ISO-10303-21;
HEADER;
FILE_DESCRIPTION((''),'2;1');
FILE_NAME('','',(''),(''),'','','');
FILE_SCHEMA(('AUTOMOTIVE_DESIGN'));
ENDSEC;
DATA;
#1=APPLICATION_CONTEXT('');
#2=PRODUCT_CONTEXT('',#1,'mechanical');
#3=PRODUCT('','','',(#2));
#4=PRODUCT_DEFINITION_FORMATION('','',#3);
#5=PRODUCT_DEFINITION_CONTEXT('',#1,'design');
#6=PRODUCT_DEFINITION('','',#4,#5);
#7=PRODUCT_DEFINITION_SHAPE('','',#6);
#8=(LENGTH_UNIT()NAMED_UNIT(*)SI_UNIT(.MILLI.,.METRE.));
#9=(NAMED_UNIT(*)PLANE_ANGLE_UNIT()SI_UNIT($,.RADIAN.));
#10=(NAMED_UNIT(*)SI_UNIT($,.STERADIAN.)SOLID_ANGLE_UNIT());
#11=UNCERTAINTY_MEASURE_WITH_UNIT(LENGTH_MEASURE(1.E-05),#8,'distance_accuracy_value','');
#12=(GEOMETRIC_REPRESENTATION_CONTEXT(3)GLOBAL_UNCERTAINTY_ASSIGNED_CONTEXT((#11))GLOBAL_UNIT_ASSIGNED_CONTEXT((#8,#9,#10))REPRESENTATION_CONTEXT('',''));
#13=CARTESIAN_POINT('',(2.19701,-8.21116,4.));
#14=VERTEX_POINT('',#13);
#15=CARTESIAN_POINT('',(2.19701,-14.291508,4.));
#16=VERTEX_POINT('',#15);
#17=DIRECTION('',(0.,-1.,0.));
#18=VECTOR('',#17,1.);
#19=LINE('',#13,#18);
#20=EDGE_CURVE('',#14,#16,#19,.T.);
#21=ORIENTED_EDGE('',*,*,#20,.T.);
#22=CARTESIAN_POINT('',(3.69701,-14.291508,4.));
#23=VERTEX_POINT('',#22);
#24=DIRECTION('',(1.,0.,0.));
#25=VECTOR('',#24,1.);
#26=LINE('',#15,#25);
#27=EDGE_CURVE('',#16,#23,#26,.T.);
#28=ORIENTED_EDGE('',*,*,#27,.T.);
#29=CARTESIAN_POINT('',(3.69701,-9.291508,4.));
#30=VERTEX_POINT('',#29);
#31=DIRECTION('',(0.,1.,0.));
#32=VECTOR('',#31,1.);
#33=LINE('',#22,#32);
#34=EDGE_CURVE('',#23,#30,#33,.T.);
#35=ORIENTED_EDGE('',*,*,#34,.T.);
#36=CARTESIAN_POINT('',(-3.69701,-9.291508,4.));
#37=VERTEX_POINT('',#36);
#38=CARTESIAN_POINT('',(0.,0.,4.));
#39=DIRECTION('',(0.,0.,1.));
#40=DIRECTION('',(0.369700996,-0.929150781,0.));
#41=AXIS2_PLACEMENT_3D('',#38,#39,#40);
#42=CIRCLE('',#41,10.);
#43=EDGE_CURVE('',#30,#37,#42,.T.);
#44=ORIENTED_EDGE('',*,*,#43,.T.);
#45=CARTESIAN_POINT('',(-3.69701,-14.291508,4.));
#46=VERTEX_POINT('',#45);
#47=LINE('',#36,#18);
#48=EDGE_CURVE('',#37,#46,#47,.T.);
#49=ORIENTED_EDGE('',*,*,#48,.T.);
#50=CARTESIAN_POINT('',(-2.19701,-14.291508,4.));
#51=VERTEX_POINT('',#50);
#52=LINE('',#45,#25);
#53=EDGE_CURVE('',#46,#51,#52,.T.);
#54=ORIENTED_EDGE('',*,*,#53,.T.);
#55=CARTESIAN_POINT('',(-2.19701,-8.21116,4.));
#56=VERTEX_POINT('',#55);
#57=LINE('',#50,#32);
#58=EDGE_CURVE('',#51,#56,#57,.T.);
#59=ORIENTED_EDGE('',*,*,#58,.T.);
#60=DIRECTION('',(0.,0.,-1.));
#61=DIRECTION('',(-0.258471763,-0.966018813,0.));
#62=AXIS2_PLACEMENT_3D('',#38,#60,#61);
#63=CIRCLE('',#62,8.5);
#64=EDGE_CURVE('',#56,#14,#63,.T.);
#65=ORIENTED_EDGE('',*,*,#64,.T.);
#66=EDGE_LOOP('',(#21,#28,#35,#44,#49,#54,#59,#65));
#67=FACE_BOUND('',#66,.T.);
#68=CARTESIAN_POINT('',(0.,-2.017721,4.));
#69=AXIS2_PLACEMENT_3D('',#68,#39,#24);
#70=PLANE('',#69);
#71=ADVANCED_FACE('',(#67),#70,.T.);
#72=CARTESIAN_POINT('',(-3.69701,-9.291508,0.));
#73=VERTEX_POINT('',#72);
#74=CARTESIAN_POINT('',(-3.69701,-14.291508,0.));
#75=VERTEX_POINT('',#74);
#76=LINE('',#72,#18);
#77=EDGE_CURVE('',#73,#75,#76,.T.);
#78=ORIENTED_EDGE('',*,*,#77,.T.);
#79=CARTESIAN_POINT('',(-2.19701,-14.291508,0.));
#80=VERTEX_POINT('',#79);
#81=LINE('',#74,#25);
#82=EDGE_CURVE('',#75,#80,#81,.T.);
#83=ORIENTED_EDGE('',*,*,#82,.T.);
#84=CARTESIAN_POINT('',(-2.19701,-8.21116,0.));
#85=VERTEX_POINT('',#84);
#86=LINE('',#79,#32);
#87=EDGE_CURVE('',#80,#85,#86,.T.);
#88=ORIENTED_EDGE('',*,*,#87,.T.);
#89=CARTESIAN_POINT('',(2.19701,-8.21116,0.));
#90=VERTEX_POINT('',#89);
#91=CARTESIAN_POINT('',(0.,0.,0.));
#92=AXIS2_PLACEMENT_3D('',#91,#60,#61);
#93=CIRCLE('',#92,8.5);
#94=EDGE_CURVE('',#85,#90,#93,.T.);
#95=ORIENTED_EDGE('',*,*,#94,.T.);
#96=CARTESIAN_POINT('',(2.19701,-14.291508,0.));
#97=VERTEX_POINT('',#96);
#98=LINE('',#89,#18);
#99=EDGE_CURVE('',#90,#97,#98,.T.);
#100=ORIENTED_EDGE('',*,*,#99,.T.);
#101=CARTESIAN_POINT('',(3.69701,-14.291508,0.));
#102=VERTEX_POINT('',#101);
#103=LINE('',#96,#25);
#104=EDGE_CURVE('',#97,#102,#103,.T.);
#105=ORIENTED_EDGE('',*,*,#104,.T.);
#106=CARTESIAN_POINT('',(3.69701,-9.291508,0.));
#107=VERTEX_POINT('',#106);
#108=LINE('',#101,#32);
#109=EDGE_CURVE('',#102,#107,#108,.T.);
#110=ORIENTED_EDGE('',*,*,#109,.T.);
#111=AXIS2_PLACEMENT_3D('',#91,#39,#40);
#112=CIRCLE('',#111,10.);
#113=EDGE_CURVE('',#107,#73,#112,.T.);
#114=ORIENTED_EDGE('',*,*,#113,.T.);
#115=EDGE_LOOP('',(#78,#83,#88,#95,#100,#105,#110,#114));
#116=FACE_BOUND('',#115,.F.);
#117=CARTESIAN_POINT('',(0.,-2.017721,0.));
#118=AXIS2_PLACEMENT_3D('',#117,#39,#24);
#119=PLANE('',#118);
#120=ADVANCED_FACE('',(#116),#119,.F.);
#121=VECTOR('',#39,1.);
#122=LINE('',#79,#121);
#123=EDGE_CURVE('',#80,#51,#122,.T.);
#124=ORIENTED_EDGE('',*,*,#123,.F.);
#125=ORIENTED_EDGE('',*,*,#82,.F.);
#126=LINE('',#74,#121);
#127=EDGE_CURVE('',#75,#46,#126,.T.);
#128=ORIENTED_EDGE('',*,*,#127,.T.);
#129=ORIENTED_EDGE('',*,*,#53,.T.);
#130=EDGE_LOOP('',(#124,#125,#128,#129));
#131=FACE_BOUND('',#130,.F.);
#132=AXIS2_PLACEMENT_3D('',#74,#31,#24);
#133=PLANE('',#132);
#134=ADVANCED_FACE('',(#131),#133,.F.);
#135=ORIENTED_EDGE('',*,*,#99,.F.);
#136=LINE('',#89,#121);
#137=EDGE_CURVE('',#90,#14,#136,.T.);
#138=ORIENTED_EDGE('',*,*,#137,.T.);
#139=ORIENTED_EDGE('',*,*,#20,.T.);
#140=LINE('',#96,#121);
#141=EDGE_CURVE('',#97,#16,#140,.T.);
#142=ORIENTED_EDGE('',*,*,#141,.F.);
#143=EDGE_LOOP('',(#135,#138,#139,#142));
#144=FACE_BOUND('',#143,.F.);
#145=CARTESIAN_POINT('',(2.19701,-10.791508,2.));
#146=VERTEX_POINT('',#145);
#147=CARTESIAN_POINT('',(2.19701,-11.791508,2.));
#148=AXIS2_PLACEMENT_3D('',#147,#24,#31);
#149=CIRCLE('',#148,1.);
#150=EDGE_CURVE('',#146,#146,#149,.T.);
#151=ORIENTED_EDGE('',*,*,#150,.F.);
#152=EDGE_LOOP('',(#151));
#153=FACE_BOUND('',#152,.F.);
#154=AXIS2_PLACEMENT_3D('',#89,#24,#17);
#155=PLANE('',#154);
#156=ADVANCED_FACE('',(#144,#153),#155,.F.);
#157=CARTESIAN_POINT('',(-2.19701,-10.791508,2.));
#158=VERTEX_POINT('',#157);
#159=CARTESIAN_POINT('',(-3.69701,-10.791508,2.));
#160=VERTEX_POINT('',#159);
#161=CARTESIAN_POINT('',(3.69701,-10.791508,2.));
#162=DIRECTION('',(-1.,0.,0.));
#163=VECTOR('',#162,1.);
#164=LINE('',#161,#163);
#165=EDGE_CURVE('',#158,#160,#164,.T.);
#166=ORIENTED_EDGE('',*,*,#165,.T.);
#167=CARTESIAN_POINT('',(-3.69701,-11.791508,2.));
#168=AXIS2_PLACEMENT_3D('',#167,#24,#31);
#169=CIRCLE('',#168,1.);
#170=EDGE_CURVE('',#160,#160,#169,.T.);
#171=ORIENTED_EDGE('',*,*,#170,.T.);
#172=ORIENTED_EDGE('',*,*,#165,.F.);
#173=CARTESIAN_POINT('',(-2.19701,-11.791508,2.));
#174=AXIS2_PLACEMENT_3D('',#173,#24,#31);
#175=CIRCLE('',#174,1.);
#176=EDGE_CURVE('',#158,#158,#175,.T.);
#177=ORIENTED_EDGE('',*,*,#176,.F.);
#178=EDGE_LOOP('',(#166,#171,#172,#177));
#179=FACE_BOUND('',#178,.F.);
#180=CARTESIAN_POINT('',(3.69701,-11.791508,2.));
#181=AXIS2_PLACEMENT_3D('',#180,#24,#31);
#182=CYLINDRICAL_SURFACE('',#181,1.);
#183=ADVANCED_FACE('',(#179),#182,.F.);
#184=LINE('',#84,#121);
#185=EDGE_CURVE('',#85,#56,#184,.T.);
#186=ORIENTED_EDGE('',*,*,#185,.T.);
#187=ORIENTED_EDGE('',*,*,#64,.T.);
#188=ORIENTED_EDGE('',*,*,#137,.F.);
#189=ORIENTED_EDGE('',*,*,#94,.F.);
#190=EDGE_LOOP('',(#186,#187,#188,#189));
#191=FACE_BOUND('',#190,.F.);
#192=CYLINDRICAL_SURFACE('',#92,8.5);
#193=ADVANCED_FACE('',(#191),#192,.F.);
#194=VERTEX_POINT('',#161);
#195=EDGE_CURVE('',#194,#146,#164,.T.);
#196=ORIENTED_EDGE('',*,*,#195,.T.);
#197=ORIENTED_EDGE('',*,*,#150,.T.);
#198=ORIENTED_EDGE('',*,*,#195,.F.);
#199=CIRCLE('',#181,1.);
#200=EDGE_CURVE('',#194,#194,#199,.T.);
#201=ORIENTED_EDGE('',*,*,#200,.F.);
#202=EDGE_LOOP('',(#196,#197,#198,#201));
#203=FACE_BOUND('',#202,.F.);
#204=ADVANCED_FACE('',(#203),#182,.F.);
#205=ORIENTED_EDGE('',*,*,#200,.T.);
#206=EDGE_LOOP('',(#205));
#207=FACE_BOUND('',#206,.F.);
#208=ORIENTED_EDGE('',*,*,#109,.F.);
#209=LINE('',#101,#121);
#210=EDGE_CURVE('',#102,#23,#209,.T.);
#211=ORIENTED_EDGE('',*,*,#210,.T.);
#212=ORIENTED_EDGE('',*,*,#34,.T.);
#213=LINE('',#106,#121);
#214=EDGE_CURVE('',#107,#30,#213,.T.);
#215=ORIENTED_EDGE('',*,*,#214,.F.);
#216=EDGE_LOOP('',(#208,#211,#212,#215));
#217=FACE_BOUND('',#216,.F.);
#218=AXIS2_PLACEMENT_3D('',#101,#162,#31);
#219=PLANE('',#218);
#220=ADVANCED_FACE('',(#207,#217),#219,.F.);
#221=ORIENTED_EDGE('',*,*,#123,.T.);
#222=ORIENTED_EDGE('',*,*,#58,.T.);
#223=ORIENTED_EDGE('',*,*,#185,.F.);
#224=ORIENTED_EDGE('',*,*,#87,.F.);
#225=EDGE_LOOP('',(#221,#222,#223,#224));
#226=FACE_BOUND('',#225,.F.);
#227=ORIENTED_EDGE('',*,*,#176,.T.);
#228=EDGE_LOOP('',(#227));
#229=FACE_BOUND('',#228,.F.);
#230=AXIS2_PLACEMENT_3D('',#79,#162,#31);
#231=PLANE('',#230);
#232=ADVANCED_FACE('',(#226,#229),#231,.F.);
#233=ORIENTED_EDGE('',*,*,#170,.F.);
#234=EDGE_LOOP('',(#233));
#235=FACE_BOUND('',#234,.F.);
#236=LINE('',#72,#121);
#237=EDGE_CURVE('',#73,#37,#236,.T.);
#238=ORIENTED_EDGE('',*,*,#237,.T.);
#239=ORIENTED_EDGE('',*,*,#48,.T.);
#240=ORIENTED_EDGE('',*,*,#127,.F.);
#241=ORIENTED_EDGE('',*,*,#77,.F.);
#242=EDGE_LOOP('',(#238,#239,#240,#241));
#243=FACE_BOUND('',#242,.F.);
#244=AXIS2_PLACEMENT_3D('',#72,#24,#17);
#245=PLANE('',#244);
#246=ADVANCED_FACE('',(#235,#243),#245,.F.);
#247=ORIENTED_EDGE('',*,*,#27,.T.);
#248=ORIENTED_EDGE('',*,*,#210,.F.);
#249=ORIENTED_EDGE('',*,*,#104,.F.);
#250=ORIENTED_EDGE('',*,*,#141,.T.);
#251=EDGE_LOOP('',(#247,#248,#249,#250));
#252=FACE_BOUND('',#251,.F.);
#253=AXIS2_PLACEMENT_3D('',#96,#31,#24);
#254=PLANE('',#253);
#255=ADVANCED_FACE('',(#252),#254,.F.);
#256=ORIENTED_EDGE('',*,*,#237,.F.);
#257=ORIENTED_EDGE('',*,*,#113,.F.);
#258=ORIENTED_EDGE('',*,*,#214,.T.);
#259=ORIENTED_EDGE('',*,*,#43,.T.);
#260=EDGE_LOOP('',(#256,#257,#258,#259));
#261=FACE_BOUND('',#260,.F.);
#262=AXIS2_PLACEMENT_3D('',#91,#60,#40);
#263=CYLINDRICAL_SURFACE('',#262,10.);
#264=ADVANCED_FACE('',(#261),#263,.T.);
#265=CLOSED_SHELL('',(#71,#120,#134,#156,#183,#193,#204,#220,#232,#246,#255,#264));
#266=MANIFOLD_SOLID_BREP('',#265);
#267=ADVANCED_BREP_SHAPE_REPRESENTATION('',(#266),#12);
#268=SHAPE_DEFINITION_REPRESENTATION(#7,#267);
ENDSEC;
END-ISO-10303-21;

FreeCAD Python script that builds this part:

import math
import FreeCAD as App
import Part
import Sketcher
from FreeCAD import Vector

doc = App.newDocument("Part")
body = doc.addObject("PartDesign::Body", "Body")

# Sketch on XY plane
sketch1 = body.newObject("Sketcher::SketchObject", "Sketch")
sketch1.AttachmentSupport = (doc.getObject("XY_Plane"), [""])
sketch1.MapMode = "FlatFace"
sketch1.addGeometry(Part.LineSegment(Vector(2.2, -14.3, 0), Vector(3.7, -14.3, 0)), False)
sketch1.addGeometry(Part.LineSegment(Vector(3.7, -14.3, 0), Vector(3.7, -9.3, 0)), False)
sketch1.addGeometry(Part.ArcOfCircle(Part.Circle(Vector(0, 0, 0), Vector(0, 0, 1), 10), math.radians(-68), math.radians(248)), False)
sketch1.addGeometry(Part.LineSegment(Vector(-3.7, -9.3, 0), Vector(-3.7, -14.3, 0)), False)
sketch1.addGeometry(Part.LineSegment(Vector(-3.7, -14.3, 0), Vector(-2.2, -14.3, 0)), False)
sketch1.addGeometry(Part.LineSegment(Vector(-2.2, -14.3, 0), Vector(-2.2, -8.2, 0)), False)
sketch1.addGeometry(Part.ArcOfCircle(Part.Circle(Vector(0, 0, 0), Vector(0, 0, 1), 8.5), math.radians(-75), math.radians(255)), False)
sketch1.addGeometry(Part.LineSegment(Vector(2.2, -8.2, 0), Vector(2.2, -14.3, 0)), False)
sketch1.addConstraint(Sketcher.Constraint("Coincident", 0, 2, 1, 1))
sketch1.addConstraint(Sketcher.Constraint("Coincident", 1, 2, 2, 1))
sketch1.addConstraint(Sketcher.Constraint("Coincident", 2, 2, 3, 1))
sketch1.addConstraint(Sketcher.Constraint("Coincident", 3, 2, 4, 1))
sketch1.addConstraint(Sketcher.Constraint("Coincident", 4, 2, 5, 1))
sketch1.addConstraint(Sketcher.Constraint("Coincident", 5, 2, 6, 2))
sketch1.addConstraint(Sketcher.Constraint("Coincident", 6, 1, 7, 1))
sketch1.addConstraint(Sketcher.Constraint("Coincident", 7, 2, 0, 1))
sketch1.addConstraint(Sketcher.Constraint("Horizontal", 0))
sketch1.addConstraint(Sketcher.Constraint("Vertical", 1))
sketch1.addConstraint(Sketcher.Constraint("Vertical", 3))
sketch1.addConstraint(Sketcher.Constraint("Horizontal", 4))
sketch1.addConstraint(Sketcher.Constraint("Vertical", 5))
sketch1.addConstraint(Sketcher.Constraint("Vertical", 7))
sketch1.addConstraint(Sketcher.Constraint("Coincident", 2, 3, -1, 1))
sketch1.addConstraint(Sketcher.Constraint("Coincident", 6, 3, -1, 1))
sketch1.addConstraint(Sketcher.Constraint("Symmetric", 0, 2, 3, 2, -2))
sketch1.addConstraint(Sketcher.Constraint("Horizontal", 5, 2, 6, 1))
sketch1.addConstraint(Sketcher.Constraint("Radius", 2, 10.0))
sketch1.addConstraint(Sketcher.Constraint("Radius", 6, 8.5))
sketch1.addConstraint(Sketcher.Constraint("DistanceY", 1, 1, 1, 2, 5.0))
sketch1.addConstraint(Sketcher.Constraint("DistanceX", 0, 1, 0, 2, 1.5))
sketch1.addConstraint(Sketcher.Constraint("DistanceY", 5, 1, 5, 2, 6.080348))
pad1 = body.newObject("PartDesign::Pad", "Pad")
pad1.Profile = sketch1
pad1.Length = 4

# Sketch on YZ plane
sketch2 = body.newObject("Sketcher::SketchObject", "Sketch001")
sketch2.AttachmentSupport = (doc.getObject("YZ_Plane"), [""])
sketch2.MapMode = "FlatFace"
sketch2.AttachmentOffset = App.Placement(Vector(0, 0, 3.69701), App.Rotation())
sketch2.addGeometry(Part.Circle(Vector(-11.8, 2, 0), Vector(0, 0, 1), 1), False)
sketch2.addConstraint(Sketcher.Constraint("Diameter", 0, 2.0))
sketch2.addConstraint(Sketcher.Constraint("DistanceY", -1, 1, 0, 3, 2.0))
sketch2.addConstraint(Sketcher.Constraint("DistanceX", 0, 3, -1, 1, 11.791508))
pocket1 = body.newObject("PartDesign::Pocket", "Pocket")
pocket1.Profile = sketch2
pocket1.Length = 25

doc.recompute()
